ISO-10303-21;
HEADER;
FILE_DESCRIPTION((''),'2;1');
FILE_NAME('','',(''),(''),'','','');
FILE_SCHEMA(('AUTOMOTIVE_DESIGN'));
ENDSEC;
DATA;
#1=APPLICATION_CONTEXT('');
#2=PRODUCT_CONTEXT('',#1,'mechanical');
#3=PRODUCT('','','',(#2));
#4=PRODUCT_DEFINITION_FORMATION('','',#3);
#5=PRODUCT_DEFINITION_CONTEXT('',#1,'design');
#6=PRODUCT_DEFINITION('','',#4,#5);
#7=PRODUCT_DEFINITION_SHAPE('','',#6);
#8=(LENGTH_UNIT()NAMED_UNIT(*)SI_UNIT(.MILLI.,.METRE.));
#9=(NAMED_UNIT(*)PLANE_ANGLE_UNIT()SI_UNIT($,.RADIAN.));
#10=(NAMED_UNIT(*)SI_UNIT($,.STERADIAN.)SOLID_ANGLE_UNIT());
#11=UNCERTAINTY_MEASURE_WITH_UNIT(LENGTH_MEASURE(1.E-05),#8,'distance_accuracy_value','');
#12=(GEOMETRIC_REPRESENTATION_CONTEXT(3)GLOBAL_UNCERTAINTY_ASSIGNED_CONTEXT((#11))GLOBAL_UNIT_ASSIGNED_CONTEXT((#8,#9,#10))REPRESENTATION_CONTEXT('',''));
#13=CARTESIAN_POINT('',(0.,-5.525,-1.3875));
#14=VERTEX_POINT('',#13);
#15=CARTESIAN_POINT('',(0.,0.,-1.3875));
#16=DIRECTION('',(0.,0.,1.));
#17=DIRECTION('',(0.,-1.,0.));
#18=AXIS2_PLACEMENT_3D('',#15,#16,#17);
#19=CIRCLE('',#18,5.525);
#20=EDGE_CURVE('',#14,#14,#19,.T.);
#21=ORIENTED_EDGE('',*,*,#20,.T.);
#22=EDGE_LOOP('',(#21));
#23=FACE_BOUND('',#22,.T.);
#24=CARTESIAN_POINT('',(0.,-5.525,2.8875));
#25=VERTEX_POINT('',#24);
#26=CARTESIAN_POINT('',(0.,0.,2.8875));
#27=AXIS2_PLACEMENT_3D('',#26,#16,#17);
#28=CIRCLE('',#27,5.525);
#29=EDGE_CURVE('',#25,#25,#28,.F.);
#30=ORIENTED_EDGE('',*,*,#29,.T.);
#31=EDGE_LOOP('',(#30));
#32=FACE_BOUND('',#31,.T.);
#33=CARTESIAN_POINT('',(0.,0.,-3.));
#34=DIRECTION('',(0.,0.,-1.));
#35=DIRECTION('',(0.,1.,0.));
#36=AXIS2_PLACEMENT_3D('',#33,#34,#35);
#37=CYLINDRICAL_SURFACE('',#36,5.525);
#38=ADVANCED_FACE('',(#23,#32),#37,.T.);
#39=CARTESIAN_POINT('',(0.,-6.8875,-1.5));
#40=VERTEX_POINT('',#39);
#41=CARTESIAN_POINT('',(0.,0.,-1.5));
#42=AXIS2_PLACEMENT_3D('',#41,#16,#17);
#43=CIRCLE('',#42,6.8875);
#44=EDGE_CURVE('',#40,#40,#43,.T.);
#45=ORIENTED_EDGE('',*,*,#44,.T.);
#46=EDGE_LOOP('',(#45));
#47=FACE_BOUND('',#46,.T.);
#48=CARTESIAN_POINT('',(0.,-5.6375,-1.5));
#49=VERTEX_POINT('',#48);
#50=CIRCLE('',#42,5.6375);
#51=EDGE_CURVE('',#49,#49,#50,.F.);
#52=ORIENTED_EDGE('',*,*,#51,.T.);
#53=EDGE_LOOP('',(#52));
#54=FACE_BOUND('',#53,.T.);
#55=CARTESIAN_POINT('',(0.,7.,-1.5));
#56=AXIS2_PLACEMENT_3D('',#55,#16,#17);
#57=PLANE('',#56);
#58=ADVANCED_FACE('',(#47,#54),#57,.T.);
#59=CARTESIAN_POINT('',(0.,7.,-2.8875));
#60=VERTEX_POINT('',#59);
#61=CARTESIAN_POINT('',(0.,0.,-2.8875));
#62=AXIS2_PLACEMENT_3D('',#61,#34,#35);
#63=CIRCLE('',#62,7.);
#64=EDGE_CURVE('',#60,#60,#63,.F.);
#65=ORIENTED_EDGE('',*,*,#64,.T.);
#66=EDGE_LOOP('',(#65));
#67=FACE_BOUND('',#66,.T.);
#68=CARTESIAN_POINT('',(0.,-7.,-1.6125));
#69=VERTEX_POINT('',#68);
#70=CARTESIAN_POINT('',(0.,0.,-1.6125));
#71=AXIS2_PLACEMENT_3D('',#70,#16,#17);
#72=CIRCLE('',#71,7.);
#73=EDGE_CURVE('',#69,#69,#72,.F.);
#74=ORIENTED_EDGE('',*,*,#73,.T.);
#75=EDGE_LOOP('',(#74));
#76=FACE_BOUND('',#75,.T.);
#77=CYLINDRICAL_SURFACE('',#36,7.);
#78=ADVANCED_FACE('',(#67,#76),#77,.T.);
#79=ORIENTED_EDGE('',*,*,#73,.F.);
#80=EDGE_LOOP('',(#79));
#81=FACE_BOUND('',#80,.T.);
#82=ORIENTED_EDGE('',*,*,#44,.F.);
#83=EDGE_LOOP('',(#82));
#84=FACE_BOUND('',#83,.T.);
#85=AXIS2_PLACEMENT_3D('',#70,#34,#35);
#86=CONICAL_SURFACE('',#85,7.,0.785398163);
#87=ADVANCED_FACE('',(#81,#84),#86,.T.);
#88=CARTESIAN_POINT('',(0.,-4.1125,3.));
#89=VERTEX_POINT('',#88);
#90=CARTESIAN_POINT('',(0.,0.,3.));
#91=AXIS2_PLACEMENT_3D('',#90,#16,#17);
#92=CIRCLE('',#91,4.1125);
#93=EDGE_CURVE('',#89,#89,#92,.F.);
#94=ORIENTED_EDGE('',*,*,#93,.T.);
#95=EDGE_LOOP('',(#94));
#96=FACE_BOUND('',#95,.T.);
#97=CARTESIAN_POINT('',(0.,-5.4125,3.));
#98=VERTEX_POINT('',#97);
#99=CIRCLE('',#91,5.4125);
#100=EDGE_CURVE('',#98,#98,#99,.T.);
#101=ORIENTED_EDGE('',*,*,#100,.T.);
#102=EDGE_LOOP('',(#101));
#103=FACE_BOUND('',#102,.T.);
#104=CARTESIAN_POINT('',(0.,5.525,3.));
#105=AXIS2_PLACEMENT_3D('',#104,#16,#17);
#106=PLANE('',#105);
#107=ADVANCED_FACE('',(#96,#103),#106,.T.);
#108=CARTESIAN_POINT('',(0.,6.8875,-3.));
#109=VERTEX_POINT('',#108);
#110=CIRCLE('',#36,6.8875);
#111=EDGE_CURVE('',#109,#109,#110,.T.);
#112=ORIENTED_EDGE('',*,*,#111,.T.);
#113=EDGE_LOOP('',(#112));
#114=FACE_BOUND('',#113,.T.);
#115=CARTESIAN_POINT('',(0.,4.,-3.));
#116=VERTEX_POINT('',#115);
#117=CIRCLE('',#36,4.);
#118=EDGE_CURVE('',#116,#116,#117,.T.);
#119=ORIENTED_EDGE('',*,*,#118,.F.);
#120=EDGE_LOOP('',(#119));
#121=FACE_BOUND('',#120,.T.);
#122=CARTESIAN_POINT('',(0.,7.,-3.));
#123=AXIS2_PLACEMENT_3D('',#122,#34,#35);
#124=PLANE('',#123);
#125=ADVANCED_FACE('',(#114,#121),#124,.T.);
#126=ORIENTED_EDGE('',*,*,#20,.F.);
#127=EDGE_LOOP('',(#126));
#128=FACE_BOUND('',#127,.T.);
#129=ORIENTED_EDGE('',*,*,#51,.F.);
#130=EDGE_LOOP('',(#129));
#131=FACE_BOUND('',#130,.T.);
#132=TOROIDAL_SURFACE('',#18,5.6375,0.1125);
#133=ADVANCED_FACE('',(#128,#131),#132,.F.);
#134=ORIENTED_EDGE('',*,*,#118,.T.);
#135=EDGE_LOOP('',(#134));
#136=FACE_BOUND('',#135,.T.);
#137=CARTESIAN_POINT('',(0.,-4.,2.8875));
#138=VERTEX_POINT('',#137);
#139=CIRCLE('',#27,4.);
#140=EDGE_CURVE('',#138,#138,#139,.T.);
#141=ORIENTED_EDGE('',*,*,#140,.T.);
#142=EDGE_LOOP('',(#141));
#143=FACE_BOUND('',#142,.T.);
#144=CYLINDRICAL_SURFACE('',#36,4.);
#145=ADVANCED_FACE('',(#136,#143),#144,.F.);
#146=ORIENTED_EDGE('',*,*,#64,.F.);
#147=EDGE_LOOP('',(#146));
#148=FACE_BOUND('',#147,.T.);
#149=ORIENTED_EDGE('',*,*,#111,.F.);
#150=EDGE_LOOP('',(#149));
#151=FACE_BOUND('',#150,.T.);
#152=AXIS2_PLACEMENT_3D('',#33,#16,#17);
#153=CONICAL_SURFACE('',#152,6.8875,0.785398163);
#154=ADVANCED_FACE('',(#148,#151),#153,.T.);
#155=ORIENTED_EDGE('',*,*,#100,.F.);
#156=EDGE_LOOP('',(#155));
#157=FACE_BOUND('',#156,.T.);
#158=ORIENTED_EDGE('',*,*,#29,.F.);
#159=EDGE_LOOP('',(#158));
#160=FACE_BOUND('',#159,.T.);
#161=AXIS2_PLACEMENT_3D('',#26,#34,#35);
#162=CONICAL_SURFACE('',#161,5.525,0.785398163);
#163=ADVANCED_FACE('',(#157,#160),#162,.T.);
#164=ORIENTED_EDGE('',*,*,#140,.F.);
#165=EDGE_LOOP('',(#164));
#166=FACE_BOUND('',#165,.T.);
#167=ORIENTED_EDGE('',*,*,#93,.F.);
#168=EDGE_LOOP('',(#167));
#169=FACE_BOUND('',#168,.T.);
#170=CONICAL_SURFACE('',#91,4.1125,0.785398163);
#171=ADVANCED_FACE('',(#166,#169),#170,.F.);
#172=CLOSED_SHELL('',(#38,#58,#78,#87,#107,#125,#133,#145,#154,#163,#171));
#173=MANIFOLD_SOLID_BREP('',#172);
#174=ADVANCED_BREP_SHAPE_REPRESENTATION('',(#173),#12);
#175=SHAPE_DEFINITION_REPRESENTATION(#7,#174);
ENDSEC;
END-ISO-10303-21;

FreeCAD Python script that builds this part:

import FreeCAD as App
import Part
import Sketcher


def edges_at(feature, points):
    """Names of the edges that pass closest to the given points."""
    edges = feature.Shape.Edges
    near = lambda p: min(range(len(edges)), key=lambda i: edges[i].distToShape(Part.Vertex(*p))[0])
    return sorted({f"Edge{near(p) + 1}" for p in points})


def add_polygon(sketch, points):
    """Adds a closed chain of lines whose ends are joined by coincident constraints."""
    first, n = sketch.GeometryCount, len(points)
    for a, b in zip(points, points[1:] + points[:1]):
        sketch.addGeometry(Part.LineSegment(App.Vector(*a, 0), App.Vector(*b, 0)), False)
    for i in range(n):
        sketch.addConstraint(Sketcher.Constraint("Coincident", first + i, 2, first + (i + 1) % n, 1))

doc = App.newDocument("Part")
body = doc.addObject("PartDesign::Body", "Body")

sketch1 = body.newObject("Sketcher::SketchObject", "Sketch")
sketch1.AttachmentSupport = (doc.getObject("YZ_Plane"), [""])
sketch1.MapMode = "FlatFace"
add_polygon(sketch1, [(7, -3), (7, -1.5), (5.5, -1.5), (5.5, 3), (4, 3), (4, -3)])
sketch1.addConstraint([
    Sketcher.Constraint("Vertical", 0),
    Sketcher.Constraint("Horizontal", 1),
    Sketcher.Constraint("Vertical", 2),
    Sketcher.Constraint("Horizontal", 3),
    Sketcher.Constraint("Vertical", 4),
    Sketcher.Constraint("Horizontal", 5),
    Sketcher.Constraint("DistanceX", 5, 1, 5, 2, 3.0),
    Sketcher.Constraint("DistanceY", 4, 2, 4, 1, 6.0),
    Sketcher.Constraint("DistanceY", 0, 1, 0, 2, 1.5),
    Sketcher.Constraint("DistanceX", -1, 1, 0, 2, 7.0),
    Sketcher.Constraint("DistanceY", -1, 1, 2, 2, 3.0),
    Sketcher.Constraint("DistanceX", 1, 2, 1, 1, 1.475),
])
revolution = body.newObject("PartDesign::Revolution", "Revolution")
revolution.Profile = sketch1
revolution.ReferenceAxis = (sketch1, ["V_Axis"])
revolution.Angle = 360
doc.recompute()

chamfer = body.newObject("PartDesign::Chamfer", "Chamfer")
chamfer.Base = (revolution, edges_at(revolution, [
    (0, -4, 3),
    (0, -5.525, 3),
    (0, -7, -1.5),
    (0, -7, -3),
]))
chamfer.Size = 0.1125
doc.recompute()

fillet = body.newObject("PartDesign::Fillet", "Fillet")
fillet.Base = (chamfer, edges_at(chamfer, [(0, -5.525, -1.5)]))
fillet.Radius = 0.1125

doc.recompute()
